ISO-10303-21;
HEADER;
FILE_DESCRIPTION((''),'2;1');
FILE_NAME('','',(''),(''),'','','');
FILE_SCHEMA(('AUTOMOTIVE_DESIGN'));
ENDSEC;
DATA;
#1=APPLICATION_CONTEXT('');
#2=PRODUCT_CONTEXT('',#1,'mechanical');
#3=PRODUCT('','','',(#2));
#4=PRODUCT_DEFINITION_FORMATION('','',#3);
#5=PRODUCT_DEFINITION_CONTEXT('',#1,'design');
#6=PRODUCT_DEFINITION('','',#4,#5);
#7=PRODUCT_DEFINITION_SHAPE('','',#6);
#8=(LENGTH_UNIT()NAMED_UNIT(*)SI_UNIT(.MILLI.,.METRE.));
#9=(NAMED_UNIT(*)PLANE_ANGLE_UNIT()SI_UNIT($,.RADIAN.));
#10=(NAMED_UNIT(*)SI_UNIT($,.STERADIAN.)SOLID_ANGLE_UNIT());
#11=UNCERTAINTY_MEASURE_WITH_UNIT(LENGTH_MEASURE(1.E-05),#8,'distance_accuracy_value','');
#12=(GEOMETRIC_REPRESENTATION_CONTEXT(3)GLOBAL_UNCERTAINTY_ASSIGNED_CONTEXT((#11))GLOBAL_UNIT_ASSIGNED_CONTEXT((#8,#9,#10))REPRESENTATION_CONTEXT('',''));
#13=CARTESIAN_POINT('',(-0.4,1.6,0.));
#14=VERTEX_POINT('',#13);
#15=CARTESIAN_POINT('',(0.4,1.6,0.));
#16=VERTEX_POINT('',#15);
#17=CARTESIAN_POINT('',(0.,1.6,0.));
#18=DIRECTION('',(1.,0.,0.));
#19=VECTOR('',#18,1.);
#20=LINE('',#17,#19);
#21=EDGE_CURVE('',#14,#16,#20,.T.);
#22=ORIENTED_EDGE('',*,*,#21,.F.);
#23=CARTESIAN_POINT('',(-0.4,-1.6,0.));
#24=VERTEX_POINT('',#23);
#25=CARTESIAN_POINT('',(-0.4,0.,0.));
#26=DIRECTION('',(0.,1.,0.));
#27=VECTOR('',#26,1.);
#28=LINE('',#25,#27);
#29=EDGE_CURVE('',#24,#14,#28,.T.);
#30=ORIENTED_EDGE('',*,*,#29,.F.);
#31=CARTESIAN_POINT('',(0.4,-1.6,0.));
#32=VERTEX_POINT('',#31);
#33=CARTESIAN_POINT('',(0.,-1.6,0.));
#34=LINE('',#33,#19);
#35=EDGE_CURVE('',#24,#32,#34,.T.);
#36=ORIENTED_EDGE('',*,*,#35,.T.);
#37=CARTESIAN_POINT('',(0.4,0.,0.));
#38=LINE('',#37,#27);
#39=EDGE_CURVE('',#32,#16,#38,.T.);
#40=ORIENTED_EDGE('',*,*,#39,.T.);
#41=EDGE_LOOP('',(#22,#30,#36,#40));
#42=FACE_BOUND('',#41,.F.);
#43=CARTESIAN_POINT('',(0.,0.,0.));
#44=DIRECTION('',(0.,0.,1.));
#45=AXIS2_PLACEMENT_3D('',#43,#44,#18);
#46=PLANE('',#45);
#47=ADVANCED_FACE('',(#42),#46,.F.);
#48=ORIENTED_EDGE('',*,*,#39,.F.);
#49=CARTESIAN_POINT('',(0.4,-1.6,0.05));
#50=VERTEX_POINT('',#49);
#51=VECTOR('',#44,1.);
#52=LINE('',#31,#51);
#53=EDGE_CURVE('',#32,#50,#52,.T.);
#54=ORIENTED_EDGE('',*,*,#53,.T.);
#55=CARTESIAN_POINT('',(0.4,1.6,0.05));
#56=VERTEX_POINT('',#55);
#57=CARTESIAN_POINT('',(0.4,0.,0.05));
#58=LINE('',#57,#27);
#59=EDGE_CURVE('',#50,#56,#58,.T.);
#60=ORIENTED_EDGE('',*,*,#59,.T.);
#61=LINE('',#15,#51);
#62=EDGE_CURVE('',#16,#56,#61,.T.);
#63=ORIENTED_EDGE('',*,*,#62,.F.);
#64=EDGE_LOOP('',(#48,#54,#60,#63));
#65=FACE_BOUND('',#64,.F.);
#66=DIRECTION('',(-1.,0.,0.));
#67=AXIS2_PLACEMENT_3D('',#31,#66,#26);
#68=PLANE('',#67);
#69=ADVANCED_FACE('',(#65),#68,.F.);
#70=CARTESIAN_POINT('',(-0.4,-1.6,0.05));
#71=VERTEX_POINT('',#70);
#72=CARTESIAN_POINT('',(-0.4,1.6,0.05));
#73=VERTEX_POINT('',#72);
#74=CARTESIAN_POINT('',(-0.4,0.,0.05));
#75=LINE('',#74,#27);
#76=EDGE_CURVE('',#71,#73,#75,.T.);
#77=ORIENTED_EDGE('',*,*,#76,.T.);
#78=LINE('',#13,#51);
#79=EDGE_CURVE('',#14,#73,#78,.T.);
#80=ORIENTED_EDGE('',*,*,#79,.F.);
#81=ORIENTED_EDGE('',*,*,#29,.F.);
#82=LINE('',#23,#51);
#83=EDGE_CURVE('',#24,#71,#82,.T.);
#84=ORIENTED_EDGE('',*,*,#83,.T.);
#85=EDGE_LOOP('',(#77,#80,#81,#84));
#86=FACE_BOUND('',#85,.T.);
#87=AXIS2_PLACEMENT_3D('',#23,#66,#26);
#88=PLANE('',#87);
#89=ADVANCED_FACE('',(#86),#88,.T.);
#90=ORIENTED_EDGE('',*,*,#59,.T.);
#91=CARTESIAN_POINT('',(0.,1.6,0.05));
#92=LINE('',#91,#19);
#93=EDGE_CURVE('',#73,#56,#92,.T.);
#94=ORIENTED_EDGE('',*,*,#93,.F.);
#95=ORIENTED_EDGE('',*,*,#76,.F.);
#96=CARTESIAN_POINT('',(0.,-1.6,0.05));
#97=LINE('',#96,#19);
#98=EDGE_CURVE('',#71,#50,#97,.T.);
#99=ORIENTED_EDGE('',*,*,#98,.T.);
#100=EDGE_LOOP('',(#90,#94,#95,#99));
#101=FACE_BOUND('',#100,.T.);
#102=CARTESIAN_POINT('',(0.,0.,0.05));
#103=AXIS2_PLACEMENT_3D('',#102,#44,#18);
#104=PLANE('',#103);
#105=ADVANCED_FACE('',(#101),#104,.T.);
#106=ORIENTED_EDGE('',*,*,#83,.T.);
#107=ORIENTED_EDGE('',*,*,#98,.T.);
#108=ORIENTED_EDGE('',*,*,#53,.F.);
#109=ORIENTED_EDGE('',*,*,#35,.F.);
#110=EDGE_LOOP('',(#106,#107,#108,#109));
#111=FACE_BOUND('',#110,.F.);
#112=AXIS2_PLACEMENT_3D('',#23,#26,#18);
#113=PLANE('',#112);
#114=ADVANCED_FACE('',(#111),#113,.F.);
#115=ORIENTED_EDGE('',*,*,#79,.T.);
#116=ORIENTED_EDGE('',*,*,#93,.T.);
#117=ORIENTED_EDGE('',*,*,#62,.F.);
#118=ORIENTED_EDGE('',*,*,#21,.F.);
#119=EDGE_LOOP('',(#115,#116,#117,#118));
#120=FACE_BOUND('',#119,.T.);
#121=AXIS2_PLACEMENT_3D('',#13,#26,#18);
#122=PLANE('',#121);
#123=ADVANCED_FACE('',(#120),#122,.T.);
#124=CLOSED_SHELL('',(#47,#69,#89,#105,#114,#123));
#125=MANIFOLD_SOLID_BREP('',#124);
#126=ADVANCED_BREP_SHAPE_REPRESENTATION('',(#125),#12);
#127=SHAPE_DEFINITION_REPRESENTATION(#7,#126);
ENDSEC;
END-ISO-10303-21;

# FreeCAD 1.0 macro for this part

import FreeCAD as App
import Part
import Sketcher
Q = App.Units.Quantity


def add_polygon(sketch, points):
    """Adds a closed chain of lines whose ends are joined by coincident constraints."""
    first, n = sketch.GeometryCount, len(points)
    for a, b in zip(points, points[1:] + points[:1]):
        sketch.addGeometry(Part.LineSegment(App.Vector(*a, 0), App.Vector(*b, 0)), False)
    for i in range(n):
        sketch.addConstraint(Sketcher.Constraint("Coincident", first + i, 2, first + (i + 1) % n, 1))

doc = App.newDocument("Part")
body = doc.addObject("PartDesign::Body", "Body")

sketch1 = body.newObject("Sketcher::SketchObject", "Sketch")
sketch1.AttachmentSupport = (doc.getObject("XY_Plane"), [""])
sketch1.MapMode = "FlatFace"
add_polygon(sketch1, [(-0.4, 1.6), (-0.4, -1.6), (0.4, -1.6), (0.4, 1.6)])
sketch1.addConstraint([
    Sketcher.Constraint("Vertical", 0),
    Sketcher.Constraint("Horizontal", 1),
    Sketcher.Constraint("Vertical", 2),
    Sketcher.Constraint("Horizontal", 3),
    Sketcher.Constraint("Symmetric", 0, 2, 2, 2, -1, 1),
    Sketcher.Constraint("DistanceX", 1, 1, 1, 2, Q("0.8 mm")),
    Sketcher.Constraint("DistanceY", 0, 2, 0, 1, Q("3.2 mm")),
])
pad1 = body.newObject("PartDesign::Pad", "Pad")
pad1.Profile = sketch1
pad1.Length = 0.05

doc.recompute()
